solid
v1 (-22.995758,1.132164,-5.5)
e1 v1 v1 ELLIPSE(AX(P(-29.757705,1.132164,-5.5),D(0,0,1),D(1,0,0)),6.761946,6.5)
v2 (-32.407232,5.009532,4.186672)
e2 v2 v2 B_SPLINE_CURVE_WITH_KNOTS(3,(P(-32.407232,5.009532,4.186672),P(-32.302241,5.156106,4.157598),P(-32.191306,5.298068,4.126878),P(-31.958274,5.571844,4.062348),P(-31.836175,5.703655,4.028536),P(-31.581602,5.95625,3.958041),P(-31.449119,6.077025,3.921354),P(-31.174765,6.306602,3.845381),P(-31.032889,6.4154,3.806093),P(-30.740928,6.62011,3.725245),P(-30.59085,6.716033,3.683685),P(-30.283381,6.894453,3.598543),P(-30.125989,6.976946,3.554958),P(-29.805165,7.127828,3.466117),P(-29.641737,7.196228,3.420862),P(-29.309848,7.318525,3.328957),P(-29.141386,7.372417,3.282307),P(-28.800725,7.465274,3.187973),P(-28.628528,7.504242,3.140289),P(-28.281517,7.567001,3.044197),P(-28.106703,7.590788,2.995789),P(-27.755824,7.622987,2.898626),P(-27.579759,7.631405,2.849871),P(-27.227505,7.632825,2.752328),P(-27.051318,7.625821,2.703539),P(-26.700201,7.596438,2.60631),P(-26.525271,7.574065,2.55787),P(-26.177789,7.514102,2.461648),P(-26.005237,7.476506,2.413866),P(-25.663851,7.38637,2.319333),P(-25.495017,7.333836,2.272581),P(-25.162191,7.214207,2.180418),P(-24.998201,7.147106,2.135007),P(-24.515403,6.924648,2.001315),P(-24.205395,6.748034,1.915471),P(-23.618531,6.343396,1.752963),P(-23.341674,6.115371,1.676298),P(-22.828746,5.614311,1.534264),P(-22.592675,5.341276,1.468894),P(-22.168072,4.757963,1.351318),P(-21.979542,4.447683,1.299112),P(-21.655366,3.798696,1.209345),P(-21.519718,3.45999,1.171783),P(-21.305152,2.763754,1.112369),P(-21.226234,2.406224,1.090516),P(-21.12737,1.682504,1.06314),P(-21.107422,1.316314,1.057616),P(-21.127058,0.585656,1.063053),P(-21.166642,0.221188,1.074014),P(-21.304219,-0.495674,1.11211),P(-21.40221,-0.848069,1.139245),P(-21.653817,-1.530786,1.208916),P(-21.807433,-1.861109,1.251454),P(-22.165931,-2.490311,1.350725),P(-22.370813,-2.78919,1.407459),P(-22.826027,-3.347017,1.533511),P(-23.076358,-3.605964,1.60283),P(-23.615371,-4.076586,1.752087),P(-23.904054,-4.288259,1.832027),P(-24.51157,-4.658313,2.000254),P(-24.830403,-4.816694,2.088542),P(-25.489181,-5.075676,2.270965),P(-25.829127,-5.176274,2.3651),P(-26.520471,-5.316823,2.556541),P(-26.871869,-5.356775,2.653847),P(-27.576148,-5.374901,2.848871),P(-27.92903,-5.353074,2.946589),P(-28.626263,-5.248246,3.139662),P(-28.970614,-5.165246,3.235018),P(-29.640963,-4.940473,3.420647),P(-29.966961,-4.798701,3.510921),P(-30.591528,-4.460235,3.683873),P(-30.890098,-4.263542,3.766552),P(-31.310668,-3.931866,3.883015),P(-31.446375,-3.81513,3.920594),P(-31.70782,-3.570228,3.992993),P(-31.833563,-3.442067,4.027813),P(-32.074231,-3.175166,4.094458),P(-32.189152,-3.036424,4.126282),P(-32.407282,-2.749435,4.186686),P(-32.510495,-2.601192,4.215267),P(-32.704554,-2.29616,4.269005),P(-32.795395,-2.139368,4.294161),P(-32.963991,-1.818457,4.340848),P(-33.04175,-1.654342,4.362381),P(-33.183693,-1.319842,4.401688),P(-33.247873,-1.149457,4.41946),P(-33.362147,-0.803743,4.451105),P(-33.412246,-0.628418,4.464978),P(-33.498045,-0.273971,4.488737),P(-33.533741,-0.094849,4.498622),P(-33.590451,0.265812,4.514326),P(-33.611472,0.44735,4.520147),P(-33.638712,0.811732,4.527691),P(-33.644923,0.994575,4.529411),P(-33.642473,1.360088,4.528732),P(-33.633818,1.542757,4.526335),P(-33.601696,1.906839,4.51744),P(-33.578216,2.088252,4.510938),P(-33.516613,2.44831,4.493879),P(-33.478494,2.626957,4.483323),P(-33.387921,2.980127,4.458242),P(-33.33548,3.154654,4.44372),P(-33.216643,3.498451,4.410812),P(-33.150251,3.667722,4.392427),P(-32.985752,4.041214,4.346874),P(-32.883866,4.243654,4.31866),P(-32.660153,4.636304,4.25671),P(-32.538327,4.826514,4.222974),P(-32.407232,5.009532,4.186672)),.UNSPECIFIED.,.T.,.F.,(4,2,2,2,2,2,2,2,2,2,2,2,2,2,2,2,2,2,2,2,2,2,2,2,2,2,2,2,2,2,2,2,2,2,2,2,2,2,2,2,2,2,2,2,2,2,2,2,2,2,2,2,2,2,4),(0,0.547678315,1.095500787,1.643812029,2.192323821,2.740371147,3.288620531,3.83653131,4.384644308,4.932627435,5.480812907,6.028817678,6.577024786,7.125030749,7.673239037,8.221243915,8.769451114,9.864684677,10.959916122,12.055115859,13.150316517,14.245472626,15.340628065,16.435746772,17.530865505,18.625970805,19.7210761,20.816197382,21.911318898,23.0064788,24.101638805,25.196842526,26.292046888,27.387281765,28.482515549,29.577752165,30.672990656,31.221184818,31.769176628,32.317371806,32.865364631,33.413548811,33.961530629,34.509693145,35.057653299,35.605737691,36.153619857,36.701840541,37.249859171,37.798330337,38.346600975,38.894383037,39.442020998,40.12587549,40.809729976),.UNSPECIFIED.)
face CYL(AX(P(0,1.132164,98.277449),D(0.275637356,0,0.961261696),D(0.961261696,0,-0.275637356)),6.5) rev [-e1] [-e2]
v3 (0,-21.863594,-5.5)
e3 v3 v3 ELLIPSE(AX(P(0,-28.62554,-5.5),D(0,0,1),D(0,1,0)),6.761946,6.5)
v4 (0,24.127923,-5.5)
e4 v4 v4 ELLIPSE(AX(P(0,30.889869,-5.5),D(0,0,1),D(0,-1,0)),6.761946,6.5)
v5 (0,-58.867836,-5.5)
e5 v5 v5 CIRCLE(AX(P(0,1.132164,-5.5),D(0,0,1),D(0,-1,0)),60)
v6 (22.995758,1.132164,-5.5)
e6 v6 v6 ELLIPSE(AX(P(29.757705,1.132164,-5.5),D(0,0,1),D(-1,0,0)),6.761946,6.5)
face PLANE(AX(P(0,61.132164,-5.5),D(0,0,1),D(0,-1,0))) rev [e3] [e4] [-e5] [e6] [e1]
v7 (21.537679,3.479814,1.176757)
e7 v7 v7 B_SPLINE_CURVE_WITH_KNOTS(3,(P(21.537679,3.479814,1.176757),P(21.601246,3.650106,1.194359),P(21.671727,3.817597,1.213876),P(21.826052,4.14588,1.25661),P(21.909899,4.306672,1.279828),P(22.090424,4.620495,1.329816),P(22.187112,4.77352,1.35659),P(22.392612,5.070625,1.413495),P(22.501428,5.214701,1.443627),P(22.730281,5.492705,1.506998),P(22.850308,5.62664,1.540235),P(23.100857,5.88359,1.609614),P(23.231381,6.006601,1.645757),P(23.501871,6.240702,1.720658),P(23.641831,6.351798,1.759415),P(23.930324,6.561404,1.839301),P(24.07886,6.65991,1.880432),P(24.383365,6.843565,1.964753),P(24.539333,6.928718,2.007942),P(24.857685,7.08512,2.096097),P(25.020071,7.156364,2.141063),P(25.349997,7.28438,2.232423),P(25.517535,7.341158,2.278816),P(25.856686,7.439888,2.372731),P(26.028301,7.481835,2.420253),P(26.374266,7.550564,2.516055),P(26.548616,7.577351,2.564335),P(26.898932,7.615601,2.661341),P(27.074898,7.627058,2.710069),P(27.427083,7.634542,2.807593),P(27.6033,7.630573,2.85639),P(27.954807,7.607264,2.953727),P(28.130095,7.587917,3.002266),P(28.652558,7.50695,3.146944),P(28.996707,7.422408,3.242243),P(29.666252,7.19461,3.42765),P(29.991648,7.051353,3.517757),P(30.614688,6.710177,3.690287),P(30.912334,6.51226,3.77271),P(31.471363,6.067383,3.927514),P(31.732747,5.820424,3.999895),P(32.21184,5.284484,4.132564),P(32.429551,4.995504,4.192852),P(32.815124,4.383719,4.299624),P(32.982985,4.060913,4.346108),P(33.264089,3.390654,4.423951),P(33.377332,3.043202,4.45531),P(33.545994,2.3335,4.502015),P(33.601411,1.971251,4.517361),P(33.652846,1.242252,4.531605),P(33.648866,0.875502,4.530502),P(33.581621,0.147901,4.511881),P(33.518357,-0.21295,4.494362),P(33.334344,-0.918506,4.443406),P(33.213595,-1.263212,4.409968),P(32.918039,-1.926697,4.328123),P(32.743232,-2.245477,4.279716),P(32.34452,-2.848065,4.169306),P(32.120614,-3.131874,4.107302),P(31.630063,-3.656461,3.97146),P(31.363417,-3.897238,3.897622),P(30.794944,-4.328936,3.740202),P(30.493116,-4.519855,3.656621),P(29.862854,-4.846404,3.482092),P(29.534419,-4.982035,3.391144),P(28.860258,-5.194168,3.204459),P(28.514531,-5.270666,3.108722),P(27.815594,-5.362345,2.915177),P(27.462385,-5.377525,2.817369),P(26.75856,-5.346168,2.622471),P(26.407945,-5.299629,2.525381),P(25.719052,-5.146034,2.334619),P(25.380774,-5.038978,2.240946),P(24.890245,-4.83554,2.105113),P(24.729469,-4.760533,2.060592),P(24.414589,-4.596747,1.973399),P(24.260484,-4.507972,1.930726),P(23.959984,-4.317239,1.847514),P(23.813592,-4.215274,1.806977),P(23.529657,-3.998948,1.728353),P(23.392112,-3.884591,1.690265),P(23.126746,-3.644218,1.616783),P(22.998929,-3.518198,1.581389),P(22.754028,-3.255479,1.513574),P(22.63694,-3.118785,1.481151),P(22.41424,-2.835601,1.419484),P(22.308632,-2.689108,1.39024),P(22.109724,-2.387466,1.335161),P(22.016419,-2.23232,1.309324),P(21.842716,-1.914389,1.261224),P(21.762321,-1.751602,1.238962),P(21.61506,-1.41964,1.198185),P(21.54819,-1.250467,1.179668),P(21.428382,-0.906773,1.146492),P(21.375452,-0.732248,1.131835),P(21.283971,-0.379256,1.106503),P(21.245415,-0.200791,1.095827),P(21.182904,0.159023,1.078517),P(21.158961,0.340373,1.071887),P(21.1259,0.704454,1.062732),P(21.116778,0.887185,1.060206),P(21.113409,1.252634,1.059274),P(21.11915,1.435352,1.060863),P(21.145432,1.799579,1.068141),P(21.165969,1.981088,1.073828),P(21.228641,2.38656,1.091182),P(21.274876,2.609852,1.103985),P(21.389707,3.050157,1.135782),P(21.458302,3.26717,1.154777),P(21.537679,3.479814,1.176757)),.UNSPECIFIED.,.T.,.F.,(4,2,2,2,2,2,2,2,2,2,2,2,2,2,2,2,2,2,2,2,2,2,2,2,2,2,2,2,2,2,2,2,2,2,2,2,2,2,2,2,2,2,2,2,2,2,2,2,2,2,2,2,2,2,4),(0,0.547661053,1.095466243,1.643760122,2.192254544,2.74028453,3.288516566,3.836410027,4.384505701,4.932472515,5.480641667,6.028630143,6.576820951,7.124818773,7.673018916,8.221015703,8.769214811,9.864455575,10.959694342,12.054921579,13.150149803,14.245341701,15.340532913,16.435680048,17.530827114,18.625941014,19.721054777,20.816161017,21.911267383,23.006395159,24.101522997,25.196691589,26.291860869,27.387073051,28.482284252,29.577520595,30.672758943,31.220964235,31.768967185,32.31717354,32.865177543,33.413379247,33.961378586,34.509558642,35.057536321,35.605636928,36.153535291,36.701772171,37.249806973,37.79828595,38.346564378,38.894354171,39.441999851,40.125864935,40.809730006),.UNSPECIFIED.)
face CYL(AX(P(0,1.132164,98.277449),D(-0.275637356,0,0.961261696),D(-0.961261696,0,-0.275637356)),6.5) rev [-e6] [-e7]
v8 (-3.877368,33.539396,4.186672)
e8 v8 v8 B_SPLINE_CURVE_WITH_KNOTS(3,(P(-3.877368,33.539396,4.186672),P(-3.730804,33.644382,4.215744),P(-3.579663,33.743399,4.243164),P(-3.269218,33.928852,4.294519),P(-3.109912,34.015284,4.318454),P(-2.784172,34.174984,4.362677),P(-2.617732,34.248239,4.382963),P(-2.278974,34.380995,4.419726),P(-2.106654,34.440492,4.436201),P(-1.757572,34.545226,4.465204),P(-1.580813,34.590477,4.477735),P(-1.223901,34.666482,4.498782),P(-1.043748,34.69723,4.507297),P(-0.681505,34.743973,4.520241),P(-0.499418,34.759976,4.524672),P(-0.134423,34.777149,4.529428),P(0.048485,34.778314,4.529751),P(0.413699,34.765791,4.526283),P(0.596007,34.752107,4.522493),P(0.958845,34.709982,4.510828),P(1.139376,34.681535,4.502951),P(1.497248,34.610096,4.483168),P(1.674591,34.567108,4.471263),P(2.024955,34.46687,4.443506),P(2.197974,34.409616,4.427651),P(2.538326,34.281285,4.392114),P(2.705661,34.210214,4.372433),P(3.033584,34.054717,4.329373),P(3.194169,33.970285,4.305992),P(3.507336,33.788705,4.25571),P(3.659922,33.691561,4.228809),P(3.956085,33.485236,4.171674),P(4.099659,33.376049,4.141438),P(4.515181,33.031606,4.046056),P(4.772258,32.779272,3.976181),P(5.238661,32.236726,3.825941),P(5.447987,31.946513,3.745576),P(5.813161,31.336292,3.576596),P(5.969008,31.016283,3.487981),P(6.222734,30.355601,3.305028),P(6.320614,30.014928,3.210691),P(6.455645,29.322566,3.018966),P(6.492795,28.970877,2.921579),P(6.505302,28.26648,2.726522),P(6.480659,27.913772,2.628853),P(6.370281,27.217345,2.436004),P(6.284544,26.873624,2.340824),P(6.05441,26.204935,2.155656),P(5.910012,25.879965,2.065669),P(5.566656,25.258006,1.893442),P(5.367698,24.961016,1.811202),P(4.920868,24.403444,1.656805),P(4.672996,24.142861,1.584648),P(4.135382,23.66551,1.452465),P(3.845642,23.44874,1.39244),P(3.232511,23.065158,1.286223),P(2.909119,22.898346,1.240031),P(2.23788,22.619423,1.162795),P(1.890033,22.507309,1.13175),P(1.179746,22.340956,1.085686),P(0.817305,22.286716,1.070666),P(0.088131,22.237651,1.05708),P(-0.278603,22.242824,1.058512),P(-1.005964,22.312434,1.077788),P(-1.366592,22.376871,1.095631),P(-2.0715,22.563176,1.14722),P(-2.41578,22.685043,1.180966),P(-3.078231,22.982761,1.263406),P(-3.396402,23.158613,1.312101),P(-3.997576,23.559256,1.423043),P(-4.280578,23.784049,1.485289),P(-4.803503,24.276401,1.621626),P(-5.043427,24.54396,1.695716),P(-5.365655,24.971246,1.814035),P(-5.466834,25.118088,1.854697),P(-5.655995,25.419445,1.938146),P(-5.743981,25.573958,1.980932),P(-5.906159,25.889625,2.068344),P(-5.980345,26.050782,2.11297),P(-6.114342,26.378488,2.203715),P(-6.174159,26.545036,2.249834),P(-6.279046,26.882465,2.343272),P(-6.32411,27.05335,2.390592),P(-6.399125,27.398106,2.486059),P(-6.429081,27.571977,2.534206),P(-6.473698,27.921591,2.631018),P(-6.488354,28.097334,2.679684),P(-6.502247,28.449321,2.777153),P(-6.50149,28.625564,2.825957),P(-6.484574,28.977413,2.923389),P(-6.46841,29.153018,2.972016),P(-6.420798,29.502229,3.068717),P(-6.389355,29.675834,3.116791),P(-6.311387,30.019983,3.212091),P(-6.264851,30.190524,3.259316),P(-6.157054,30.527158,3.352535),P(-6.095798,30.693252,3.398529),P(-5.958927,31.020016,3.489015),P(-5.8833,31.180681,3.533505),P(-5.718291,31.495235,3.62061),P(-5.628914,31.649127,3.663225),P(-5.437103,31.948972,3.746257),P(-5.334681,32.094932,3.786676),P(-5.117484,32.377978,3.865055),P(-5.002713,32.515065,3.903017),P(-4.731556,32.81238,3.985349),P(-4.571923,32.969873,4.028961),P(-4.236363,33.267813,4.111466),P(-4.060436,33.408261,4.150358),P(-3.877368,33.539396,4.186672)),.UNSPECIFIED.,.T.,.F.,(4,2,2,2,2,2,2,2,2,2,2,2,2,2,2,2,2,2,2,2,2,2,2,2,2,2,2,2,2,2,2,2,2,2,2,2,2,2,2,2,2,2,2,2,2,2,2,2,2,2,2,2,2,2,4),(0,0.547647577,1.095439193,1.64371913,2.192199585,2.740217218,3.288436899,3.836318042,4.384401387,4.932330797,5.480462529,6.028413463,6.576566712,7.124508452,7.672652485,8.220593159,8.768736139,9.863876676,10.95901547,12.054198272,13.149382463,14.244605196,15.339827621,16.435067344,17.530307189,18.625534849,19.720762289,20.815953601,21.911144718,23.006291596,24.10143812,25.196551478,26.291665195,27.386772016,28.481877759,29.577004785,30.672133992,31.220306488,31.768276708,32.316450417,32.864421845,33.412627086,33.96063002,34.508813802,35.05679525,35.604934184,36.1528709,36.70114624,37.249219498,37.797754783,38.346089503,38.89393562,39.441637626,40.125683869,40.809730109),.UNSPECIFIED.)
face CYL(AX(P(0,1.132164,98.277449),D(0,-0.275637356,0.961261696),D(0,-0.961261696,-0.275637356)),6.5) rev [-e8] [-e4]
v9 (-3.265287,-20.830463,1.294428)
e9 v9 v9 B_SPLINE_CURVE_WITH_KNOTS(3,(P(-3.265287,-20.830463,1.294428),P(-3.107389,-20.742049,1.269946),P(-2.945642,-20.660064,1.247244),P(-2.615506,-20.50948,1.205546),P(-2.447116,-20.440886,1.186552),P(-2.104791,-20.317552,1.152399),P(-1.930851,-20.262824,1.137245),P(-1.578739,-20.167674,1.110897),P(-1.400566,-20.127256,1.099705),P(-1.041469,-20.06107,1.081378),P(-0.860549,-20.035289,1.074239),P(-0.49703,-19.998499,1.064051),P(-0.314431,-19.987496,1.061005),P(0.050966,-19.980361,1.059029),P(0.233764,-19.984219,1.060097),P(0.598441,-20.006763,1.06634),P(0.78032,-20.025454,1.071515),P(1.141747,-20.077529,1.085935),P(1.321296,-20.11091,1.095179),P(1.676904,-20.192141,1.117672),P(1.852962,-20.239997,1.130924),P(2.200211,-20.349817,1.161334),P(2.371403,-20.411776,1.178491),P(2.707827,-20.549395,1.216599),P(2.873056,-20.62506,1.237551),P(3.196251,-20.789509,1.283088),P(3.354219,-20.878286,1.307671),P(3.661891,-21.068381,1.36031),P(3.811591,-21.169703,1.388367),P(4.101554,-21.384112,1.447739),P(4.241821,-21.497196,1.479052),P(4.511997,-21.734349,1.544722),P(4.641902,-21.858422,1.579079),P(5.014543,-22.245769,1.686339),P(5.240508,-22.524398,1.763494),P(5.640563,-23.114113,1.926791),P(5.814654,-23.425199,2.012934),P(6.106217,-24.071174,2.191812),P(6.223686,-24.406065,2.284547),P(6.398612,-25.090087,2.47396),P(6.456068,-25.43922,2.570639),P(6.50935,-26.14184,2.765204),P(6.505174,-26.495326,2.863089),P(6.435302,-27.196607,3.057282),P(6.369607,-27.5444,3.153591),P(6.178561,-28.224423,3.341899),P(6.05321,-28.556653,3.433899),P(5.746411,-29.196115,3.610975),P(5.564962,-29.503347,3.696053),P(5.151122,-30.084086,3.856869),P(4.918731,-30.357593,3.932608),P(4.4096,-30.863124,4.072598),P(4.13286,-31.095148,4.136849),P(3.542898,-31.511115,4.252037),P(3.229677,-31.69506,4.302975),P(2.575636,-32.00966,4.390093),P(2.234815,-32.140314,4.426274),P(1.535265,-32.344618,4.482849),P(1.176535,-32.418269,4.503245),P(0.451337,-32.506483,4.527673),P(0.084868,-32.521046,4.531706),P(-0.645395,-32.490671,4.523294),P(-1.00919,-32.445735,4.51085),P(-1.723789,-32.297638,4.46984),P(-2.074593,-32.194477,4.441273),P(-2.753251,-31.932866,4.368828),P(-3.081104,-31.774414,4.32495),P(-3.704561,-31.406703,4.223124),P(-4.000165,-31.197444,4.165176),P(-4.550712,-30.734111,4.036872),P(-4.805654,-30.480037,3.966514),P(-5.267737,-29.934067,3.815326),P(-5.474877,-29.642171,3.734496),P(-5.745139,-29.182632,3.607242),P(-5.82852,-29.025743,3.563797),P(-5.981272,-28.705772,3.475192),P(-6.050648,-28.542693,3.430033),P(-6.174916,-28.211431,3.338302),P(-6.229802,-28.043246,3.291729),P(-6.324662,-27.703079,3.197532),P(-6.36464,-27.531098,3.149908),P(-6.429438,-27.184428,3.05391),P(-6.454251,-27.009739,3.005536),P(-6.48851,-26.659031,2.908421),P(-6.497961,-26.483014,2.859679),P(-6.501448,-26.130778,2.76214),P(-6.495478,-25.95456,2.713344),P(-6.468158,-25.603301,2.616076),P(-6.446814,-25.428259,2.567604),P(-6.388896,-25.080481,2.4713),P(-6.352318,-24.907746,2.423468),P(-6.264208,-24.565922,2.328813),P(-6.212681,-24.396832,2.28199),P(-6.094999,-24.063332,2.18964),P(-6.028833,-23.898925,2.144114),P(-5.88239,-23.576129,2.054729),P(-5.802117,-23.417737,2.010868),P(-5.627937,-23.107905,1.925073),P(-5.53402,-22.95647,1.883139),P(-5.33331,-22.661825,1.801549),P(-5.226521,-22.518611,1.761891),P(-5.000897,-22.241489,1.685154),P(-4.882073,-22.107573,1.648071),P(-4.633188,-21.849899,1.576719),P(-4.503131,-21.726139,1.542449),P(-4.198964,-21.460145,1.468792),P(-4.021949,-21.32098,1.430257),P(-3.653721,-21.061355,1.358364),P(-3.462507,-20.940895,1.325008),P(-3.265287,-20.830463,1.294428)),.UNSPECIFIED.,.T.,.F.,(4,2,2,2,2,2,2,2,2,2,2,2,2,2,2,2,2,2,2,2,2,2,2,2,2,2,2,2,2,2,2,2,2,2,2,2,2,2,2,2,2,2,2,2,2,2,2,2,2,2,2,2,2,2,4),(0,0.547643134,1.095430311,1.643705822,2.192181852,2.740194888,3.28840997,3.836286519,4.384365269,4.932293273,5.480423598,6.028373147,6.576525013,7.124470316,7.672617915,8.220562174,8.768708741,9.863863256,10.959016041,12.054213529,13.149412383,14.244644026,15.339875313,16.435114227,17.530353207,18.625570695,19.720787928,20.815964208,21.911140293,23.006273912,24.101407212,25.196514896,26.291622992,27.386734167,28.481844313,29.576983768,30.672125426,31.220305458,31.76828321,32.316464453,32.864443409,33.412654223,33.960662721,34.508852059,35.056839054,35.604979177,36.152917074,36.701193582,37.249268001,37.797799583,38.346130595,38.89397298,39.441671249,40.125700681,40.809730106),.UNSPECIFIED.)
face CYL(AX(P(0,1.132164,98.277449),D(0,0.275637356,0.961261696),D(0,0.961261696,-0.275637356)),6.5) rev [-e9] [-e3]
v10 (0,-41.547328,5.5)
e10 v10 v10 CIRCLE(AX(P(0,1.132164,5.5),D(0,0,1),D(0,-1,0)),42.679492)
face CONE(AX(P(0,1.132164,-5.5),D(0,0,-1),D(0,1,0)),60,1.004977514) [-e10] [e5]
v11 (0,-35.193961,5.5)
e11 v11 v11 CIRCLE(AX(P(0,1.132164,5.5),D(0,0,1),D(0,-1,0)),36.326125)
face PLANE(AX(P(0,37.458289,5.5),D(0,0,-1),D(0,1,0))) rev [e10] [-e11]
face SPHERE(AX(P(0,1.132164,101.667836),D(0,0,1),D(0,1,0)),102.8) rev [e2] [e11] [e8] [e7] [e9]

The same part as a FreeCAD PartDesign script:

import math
import FreeCAD as App
import Part
import Sketcher
Q = App.Units.Quantity


def add_polygon(sketch, points):
    """Adds a closed chain of lines whose ends are joined by coincident constraints."""
    first, n = sketch.GeometryCount, len(points)
    for a, b in zip(points, points[1:] + points[:1]):
        sketch.addGeometry(Part.LineSegment(App.Vector(*a, 0), App.Vector(*b, 0)), False)
    for i in range(n):
        sketch.addConstraint(Sketcher.Constraint("Coincident", first + i, 2, first + (i + 1) % n, 1))

doc = App.newDocument("Part")
body = doc.addObject("PartDesign::Body", "Body")

# Sketch on YZ plane
sketch1 = body.newObject("Sketcher::SketchObject", "Sketch")
sketch1.AttachmentSupport = (doc.getObject("YZ_Plane"), [""])
sketch1.MapMode = "FlatFace"
sketch1.addGeometry([
    Part.LineSegment(App.Vector(0, 0, 0), App.Vector(-4.367836, 0, 0)),  # 0
    Part.LineSegment(App.Vector(-4.367836, 0, 0), App.Vector(-4.367836, -60, 0)),  # 1
    Part.LineSegment(App.Vector(-4.367836, -60, 0), App.Vector(6.632164, -42.679492, 0)),  # 2
    Part.LineSegment(App.Vector(6.632164, -42.679492, 0), App.Vector(6.632164, -36.326125, 0)),  # 3
    Part.ArcOfCircle(Part.Circle(App.Vector(102.8, 0, 0), App.Vector(0, 0, 1), 102.8), math.radians(180), math.radians(200.693393)),  # 4
], False)
sketch1.addConstraint([
    Sketcher.Constraint("Coincident", 0, 2, 1, 1),
    Sketcher.Constraint("Coincident", 1, 2, 2, 1),
    Sketcher.Constraint("Coincident", 2, 2, 3, 1),
    Sketcher.Constraint("Coincident", 3, 2, 4, 2),
    Sketcher.Constraint("Coincident", 4, 1, 0, 1),
    Sketcher.Constraint("Horizontal", 0),
    Sketcher.Constraint("Vertical", 1),
    Sketcher.Constraint("Vertical", 3),
    Sketcher.Constraint("Coincident", 4, 1, -1, 1),
    Sketcher.Constraint("PointOnObject", 4, 3, -1),
    Sketcher.Constraint("Radius", 4, 102.8),
    Sketcher.Constraint("DistanceY", 1, 2, 1, 1, 60.0),
    Sketcher.Constraint("DistanceX", 1, 2, 2, 2, 11.0),
    Sketcher.Constraint("DistanceX", 0, 2, 0, 1, 4.367836),
    Sketcher.Constraint("DistanceY", 3, 1, 3, 2, 6.353367),
])
revolution = body.newObject("PartDesign::Revolution", "Revolution")
revolution.Profile = sketch1
revolution.ReferenceAxis = (sketch1, ["H_Axis"])
revolution.Angle = 360

# Sketch on XY plane
sketch2 = body.newObject("Sketcher::SketchObject", "Sketch001")
sketch2.AttachmentSupport = (doc.getObject("XY_Plane"), [""])
sketch2.MapMode = "FlatFace"
add_polygon(sketch2, [(29.364791, 20.584127), (23.11659, 18.792484), (33.315882, -16.776674), (39.564083, -14.985032)])  # lines 0-3
sketch2.addGeometry(Part.LineSegment(App.Vector(23.11659, 18.792484, 0), App.Vector(33.315882, -16.776674, 0)), True)  # axis
sketch2.addConstraint([
    Sketcher.Constraint("Coincident", 4, 1, 0, 2),
    Sketcher.Constraint("Coincident", 4, 2, 1, 2),
    Sketcher.Constraint("Perpendicular", 0, 1),
    Sketcher.Constraint("Perpendicular", 1, 2),
    Sketcher.Constraint("Perpendicular", 2, 3),
    Sketcher.Constraint("Angle", 0, Q("-164 deg")),
    Sketcher.Constraint("Distance", 0, 6.5),
    Sketcher.Constraint("DistanceY", 1, 2, 3, 2, 37.360802),
    Sketcher.Constraint("DistanceX", -1, 1, 0, 2, 23.11659),
    Sketcher.Constraint("DistanceY", 2, 2, -1, 1, 14.985032),
])
groove = body.newObject("PartDesign::Groove", "Groove")
groove.Profile = sketch2
groove.ReferenceAxis = (sketch2, ["Axis0"])
groove.Angle = 360
doc.recompute()

polarpattern = body.newObject("PartDesign::PolarPattern", "PolarPattern")
polarpattern.Originals = [groove]
polarpattern.Axis = (doc.getObject("Y_Axis"), [""])
polarpattern.Angle = 360
polarpattern.Occurrences = 4
body.Tip = polarpattern
body2 = doc.addObject("PartDesign::Body", "Body001")
doc.recompute()

body.Placement = App.Placement(App.Vector(0, 1.132164, -1.132164), App.Rotation(App.Vector(1, 0, 0), 90))
boolean = body2.newObject("PartDesign::Boolean", "Boolean")
boolean.Type = "Fuse"
boolean.addObjects([body])

doc.recompute()
